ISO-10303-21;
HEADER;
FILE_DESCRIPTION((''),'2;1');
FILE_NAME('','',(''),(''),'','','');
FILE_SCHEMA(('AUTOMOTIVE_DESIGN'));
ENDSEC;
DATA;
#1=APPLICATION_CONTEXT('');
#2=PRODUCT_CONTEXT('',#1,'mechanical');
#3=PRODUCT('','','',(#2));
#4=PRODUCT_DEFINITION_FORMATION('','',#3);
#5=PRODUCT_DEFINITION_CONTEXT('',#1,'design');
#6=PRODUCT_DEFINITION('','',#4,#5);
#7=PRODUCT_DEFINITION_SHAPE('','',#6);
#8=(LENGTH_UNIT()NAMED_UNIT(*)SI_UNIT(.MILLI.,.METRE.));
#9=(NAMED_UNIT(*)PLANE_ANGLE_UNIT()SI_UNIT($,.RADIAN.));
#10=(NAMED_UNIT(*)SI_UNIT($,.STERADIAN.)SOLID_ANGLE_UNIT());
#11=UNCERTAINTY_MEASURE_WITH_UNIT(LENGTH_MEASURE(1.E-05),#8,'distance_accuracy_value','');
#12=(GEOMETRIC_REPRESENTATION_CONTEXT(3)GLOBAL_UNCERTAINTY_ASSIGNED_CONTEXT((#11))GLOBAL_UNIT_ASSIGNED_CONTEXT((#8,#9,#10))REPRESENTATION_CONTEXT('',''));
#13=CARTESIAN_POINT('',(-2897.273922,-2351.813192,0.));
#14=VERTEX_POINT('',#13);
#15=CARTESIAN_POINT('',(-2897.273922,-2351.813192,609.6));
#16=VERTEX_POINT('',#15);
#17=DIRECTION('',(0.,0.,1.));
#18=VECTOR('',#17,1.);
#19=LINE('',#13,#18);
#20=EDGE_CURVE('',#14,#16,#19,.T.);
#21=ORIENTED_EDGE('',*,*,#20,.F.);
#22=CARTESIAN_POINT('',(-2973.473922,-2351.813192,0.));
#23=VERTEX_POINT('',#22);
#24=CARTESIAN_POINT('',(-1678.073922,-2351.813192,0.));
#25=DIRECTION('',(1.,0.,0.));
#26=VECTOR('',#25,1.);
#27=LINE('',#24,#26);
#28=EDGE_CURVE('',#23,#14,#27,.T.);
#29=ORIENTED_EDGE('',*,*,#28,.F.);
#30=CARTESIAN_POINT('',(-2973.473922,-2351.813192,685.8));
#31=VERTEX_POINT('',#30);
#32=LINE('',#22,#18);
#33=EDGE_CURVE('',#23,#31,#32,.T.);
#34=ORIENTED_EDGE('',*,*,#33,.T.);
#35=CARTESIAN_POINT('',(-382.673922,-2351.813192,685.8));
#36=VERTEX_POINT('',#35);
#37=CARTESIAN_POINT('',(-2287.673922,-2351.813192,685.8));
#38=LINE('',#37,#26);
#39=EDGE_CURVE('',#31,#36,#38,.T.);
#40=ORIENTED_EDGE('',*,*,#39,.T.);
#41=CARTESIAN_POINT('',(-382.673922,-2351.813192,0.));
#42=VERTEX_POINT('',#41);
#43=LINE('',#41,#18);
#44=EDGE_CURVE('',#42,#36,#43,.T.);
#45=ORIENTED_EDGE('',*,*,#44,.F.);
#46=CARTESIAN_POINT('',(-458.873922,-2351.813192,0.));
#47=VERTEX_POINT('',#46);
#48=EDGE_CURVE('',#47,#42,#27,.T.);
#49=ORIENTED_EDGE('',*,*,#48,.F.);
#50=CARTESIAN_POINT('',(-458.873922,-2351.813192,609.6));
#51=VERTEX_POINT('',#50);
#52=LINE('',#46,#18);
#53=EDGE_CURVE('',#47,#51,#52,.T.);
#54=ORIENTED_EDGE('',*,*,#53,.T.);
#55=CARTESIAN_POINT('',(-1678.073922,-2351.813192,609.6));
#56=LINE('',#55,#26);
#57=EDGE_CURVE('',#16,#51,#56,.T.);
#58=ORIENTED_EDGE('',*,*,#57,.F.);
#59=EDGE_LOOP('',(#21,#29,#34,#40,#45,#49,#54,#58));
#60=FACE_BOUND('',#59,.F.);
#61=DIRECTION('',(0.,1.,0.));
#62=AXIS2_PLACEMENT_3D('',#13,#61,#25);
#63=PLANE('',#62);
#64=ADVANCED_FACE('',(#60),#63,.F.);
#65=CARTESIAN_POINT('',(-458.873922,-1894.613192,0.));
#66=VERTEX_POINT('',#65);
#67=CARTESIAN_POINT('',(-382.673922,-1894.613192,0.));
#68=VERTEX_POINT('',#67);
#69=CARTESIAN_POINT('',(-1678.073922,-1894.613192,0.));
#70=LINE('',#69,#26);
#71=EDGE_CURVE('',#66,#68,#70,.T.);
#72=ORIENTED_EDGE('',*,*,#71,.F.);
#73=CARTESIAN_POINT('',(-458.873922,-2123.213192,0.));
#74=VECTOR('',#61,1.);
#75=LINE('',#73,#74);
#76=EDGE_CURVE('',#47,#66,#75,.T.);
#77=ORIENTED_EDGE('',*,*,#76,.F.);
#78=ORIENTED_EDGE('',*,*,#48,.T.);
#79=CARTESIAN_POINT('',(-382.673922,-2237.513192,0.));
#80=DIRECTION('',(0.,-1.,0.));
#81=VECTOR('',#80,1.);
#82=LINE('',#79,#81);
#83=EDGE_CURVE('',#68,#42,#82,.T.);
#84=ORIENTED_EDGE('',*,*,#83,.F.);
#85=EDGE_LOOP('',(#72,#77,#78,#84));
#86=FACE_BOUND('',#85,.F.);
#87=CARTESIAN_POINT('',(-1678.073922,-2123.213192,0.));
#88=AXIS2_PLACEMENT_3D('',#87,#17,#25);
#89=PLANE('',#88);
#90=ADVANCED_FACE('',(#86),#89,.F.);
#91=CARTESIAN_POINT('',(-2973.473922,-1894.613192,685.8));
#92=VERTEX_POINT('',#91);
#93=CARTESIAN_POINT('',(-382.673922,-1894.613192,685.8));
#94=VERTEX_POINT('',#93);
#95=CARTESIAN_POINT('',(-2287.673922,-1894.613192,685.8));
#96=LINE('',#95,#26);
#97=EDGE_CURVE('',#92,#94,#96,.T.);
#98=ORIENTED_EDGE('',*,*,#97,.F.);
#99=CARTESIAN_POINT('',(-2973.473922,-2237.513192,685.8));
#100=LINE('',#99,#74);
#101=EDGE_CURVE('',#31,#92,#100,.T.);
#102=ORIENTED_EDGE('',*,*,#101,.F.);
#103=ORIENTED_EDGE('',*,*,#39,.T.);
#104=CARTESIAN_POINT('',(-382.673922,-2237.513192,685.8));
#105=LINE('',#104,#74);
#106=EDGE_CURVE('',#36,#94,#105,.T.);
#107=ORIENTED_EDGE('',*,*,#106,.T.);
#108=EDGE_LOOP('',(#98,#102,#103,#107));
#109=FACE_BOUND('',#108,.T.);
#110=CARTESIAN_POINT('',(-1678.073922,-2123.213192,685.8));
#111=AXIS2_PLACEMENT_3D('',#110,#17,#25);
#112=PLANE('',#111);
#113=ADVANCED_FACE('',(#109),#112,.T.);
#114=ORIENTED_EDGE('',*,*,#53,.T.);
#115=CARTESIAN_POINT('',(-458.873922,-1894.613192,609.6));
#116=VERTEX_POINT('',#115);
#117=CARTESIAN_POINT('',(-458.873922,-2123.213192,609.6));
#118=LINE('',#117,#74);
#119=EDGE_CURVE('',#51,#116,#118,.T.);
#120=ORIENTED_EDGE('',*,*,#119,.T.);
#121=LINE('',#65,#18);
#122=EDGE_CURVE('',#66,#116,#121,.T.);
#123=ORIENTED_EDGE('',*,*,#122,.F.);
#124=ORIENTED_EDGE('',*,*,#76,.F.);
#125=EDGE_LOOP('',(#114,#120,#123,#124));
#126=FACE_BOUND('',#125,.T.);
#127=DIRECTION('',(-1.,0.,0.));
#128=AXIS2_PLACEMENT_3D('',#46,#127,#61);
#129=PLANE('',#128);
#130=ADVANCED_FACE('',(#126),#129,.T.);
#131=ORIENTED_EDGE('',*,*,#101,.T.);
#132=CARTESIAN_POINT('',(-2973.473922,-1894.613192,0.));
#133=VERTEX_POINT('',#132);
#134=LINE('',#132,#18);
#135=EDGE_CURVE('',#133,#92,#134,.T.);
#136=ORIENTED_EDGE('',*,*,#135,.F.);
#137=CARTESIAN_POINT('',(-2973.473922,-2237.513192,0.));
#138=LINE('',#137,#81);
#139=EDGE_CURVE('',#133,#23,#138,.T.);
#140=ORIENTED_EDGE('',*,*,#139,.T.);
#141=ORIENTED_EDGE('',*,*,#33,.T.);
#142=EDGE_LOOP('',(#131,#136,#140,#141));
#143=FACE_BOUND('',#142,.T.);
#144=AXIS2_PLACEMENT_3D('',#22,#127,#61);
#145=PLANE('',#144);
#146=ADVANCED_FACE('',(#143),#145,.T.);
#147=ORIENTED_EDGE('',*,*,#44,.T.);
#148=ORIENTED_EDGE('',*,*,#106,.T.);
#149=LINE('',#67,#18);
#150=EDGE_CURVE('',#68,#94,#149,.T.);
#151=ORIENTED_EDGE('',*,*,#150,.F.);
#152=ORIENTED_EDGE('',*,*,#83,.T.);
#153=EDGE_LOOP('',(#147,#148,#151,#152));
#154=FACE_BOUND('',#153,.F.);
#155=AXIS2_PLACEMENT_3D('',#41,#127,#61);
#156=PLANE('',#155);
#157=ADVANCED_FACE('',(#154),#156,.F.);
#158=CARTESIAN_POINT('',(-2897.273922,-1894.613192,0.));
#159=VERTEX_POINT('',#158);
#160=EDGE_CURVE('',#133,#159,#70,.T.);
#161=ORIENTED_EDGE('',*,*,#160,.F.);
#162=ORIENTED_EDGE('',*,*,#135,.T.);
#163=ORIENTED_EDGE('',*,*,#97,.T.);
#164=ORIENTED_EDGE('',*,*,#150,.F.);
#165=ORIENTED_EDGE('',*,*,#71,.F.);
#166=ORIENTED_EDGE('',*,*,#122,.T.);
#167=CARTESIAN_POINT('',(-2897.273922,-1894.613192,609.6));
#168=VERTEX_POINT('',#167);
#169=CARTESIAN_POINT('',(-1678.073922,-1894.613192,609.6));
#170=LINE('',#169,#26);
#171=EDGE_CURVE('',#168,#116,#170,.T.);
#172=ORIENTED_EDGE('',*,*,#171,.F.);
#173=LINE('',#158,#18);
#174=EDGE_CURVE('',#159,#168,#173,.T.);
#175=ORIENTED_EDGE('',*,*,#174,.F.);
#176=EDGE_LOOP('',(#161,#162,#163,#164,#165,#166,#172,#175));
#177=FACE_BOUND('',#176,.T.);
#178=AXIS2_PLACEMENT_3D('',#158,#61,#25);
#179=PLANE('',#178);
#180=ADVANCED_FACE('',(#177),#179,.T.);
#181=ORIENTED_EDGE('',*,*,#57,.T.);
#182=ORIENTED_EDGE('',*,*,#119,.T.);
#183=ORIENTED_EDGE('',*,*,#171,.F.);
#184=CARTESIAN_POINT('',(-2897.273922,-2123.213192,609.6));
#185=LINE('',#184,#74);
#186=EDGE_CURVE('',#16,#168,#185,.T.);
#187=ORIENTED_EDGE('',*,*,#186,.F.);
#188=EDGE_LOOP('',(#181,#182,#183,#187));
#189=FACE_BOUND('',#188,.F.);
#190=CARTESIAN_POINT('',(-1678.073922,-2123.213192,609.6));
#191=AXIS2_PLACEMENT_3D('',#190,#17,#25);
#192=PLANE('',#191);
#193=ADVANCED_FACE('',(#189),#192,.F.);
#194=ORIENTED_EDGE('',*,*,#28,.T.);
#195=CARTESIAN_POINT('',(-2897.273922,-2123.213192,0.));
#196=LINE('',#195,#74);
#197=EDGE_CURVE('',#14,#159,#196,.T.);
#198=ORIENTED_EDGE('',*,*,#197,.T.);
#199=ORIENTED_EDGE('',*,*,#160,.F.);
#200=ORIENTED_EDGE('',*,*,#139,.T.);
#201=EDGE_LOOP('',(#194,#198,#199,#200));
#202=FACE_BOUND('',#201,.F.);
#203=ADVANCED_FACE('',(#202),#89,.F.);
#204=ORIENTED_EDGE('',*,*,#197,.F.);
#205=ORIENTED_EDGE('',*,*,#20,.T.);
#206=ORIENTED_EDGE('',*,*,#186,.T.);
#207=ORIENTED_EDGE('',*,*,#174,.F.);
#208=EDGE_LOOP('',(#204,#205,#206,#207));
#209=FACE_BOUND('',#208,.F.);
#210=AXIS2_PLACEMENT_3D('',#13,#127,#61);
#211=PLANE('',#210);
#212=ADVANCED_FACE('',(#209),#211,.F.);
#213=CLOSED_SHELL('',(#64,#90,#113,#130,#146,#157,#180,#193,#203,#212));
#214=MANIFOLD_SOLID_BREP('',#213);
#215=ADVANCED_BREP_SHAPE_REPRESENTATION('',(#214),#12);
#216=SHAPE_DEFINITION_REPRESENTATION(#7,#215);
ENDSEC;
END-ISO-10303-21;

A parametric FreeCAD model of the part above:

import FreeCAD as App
import Part
import Sketcher
from FreeCAD import Vector
Q = App.Units.Quantity


def faces_at(feature, points):
    """Names of the faces that lie closest to the given points."""
    faces = feature.Shape.Faces
    near = lambda p: min(range(len(faces)), key=lambda i: faces[i].distToShape(Part.Vertex(*p))[0])
    return sorted({f"Face{near(p) + 1}" for p in points})

doc = App.newDocument("Part")
body = doc.addObject("PartDesign::Body", "Body")

sketch1 = body.newObject("Sketcher::SketchObject", "Sketch")
sketch1.AttachmentSupport = (doc.getObject("XY_Plane"), [""])
sketch1.MapMode = "FlatFace"
sketch1.addGeometry(Part.LineSegment(Vector(-2897, -1895, 0), Vector(-2897, -2352, 0)), False)
sketch1.addGeometry(Part.LineSegment(Vector(-2897, -2352, 0), Vector(-459, -2352, 0)), False)
sketch1.addGeometry(Part.LineSegment(Vector(-459, -2352, 0), Vector(-459, -1895, 0)), False)
sketch1.addGeometry(Part.LineSegment(Vector(-459, -1895, 0), Vector(-2897, -1895, 0)), False)
sketch1.addConstraint(Sketcher.Constraint("Coincident", 0, 2, 1, 1))
sketch1.addConstraint(Sketcher.Constraint("Coincident", 1, 2, 2, 1))
sketch1.addConstraint(Sketcher.Constraint("Coincident", 2, 2, 3, 1))
sketch1.addConstraint(Sketcher.Constraint("Coincident", 3, 2, 0, 1))
sketch1.addConstraint(Sketcher.Constraint("Vertical", 0))
sketch1.addConstraint(Sketcher.Constraint("Horizontal", 1))
sketch1.addConstraint(Sketcher.Constraint("Vertical", 2))
sketch1.addConstraint(Sketcher.Constraint("Horizontal", 3))
sketch1.addConstraint(Sketcher.Constraint("DistanceX", 1, 1, 1, 2, Q("96 in")))
sketch1.addConstraint(Sketcher.Constraint("DistanceY", 0, 2, 0, 1, Q("18 in")))
sketch1.addConstraint(Sketcher.Constraint("DistanceX", 0, 2, -1, 1, 2897.273922))
sketch1.addConstraint(Sketcher.Constraint("DistanceY", 0, 2, -1, 1, 2351.813192))
pad1 = body.newObject("PartDesign::Pad", "Pad")
pad1.Profile = sketch1
pad1.Length = Q("24 in")
doc.recompute()

thickness = body.newObject("PartDesign::Thickness", "Thickness")
thickness.Base = (pad1, faces_at(pad1, [(-1678.074, -2351.813, 304.8), (-1678.074, -1894.613, 304.8), (-1678.074, -2123.213, 0)]))
thickness.Value = Q("3 in")
thickness.Reversed = False
thickness.Join = "Intersection"

doc.recompute()
